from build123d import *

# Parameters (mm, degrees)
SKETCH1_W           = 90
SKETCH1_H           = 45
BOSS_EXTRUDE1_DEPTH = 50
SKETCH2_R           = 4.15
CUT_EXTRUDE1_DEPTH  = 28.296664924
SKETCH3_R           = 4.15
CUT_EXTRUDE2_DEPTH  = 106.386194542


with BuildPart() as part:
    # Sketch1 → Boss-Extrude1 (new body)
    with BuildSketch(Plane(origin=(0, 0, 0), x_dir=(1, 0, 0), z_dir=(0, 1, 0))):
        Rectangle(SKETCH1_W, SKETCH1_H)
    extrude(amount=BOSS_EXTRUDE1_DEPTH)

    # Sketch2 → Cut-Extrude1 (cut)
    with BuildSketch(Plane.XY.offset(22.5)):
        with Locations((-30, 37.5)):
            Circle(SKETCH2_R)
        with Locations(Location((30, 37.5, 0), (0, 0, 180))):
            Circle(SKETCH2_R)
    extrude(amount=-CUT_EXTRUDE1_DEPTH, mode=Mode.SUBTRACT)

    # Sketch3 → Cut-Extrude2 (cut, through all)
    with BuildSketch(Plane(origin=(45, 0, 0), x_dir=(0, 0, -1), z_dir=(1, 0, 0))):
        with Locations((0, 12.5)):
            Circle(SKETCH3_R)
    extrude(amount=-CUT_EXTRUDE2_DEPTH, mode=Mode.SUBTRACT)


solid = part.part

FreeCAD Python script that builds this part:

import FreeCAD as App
import Part
import Sketcher

doc = App.newDocument("Part")
body = doc.addObject("PartDesign::Body", "Body")

sketch1 = doc.addObject("Sketcher::SketchObject", "Sketch")
body.addObject(sketch1)
sketch1.AttachmentSupport = (doc.XZ_Plane, [""])
sketch1.MapMode = "FlatFace"
sketch1.addGeometry([
    Part.LineSegment(App.Vector(-45, -22, 0), App.Vector(-45, 22, 0)),
    Part.LineSegment(App.Vector(-45, 22, 0), App.Vector(45, 22, 0)),
    Part.LineSegment(App.Vector(45, 22, 0), App.Vector(45, -22, 0)),
    Part.LineSegment(App.Vector(45, -22, 0), App.Vector(-45, -22, 0)),
], False)
sketch1.addConstraint([
    Sketcher.Constraint("Coincident", 0, 2, 1, 1),
    Sketcher.Constraint("Coincident", 1, 2, 2, 1),
    Sketcher.Constraint("Coincident", 2, 2, 3, 1),
    Sketcher.Constraint("Coincident", 3, 2, 0, 1),
    Sketcher.Constraint("Vertical", 0),
    Sketcher.Constraint("Horizontal", 1),
    Sketcher.Constraint("Vertical", 2),
    Sketcher.Constraint("Horizontal", 3),
    Sketcher.Constraint("Symmetric", 0, 2, 2, 2, -1, 1),
    Sketcher.Constraint("DistanceX", 1, 1, 1, 2, 90.0),
    Sketcher.Constraint("DistanceY", 0, 1, 0, 2, 45.0),
])
pad1 = doc.addObject("PartDesign::Pad", "Pad")
body.addObject(pad1)
pad1.Profile = sketch1
pad1.Length = 50
pad1.Reversed = True

sketch2 = doc.addObject("Sketcher::SketchObject", "Sketch001")
body.addObject(sketch2)
sketch2.AttachmentSupport = (doc.XY_Plane, [""])
sketch2.MapMode = "FlatFace"
sketch2.AttachmentOffset = App.Placement(App.Vector(0, 0, 22.5), App.Rotation())
sketch2.addGeometry([
    Part.Circle(App.Vector(-30, 37.5, 0), App.Vector(0, 0, 1), 4.2),
    Part.Circle(App.Vector(30, 37.5, 0), App.Vector(0, 0, 1), 4.2),
], False)
sketch2.addConstraint([
    Sketcher.Constraint("Equal", 0, 1),
    Sketcher.Constraint("Symmetric", 0, 3, 1, 3, -2),
    Sketcher.Constraint("Diameter", 0, 8.3),
    Sketcher.Constraint("DistanceX", 0, 3, -1, 1, 30.0),
    Sketcher.Constraint("DistanceY", -1, 1, 0, 3, 37.5),
])
pocket1 = doc.addObject("PartDesign::Pocket", "Pocket")
body.addObject(pocket1)
pocket1.Profile = sketch2
pocket1.Length = 28.296665

sketch3 = doc.addObject("Sketcher::SketchObject", "Sketch002")
body.addObject(sketch3)
sketch3.AttachmentSupport = (doc.YZ_Plane, [""])
sketch3.MapMode = "FlatFace"
sketch3.AttachmentOffset = App.Placement(App.Vector(0, 0, 45), App.Rotation())
sketch3.addGeometry(Part.Circle(App.Vector(12.5, 0, 0), App.Vector(0, 0, 1), 4.2), False)
sketch3.addConstraint([
    Sketcher.Constraint("PointOnObject", 0, 3, -1),
    Sketcher.Constraint("Diameter", 0, 8.3),
    Sketcher.Constraint("DistanceX", -1, 1, 0, 3, 12.5),
])
pocket2 = doc.addObject("PartDesign::Pocket", "Pocket001")
body.addObject(pocket2)
pocket2.Profile = sketch3
pocket2.Type = "ThroughAll"

doc.recompute()
